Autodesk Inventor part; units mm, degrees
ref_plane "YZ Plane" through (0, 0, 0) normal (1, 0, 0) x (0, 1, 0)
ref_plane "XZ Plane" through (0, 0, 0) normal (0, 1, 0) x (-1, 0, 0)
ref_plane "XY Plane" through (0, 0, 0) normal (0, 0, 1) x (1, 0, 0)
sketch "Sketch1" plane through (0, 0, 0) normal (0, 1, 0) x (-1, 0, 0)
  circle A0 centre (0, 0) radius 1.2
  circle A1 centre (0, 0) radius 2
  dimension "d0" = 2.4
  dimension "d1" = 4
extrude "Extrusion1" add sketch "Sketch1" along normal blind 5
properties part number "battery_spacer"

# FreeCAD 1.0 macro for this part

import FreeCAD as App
import Part
import Sketcher

V = App.Vector
Q = App.Units.Quantity

doc = App.newDocument("Part")
body = doc.addObject("PartDesign::Body", "Body")

sketch1 = body.newObject("Sketcher::SketchObject", "Sketch")
sketch1.AttachmentSupport = (doc.getObject("XZ_Plane"), [""])
sketch1.MapMode = "FlatFace"
sketch1.addGeometry([
    Part.Circle(V(0, 0, 0), V(0, 0, 1), 2),
    Part.Circle(V(0, 0, 0), V(0, 0, 1), 1.2),
], False)
sketch1.addConstraint([
    Sketcher.Constraint("Coincident", 0, 3, -1, 1),
    Sketcher.Constraint("Coincident", 1, 3, -1, 1),
    Sketcher.Constraint("Diameter", 0, Q("4 mm")),
    Sketcher.Constraint("Diameter", 1, Q("2.4 mm")),
])
pad1 = body.newObject("PartDesign::Pad", "Pad")
pad1.Profile = sketch1
pad1.Length = 5
pad1.Reversed = True

doc.recompute()
